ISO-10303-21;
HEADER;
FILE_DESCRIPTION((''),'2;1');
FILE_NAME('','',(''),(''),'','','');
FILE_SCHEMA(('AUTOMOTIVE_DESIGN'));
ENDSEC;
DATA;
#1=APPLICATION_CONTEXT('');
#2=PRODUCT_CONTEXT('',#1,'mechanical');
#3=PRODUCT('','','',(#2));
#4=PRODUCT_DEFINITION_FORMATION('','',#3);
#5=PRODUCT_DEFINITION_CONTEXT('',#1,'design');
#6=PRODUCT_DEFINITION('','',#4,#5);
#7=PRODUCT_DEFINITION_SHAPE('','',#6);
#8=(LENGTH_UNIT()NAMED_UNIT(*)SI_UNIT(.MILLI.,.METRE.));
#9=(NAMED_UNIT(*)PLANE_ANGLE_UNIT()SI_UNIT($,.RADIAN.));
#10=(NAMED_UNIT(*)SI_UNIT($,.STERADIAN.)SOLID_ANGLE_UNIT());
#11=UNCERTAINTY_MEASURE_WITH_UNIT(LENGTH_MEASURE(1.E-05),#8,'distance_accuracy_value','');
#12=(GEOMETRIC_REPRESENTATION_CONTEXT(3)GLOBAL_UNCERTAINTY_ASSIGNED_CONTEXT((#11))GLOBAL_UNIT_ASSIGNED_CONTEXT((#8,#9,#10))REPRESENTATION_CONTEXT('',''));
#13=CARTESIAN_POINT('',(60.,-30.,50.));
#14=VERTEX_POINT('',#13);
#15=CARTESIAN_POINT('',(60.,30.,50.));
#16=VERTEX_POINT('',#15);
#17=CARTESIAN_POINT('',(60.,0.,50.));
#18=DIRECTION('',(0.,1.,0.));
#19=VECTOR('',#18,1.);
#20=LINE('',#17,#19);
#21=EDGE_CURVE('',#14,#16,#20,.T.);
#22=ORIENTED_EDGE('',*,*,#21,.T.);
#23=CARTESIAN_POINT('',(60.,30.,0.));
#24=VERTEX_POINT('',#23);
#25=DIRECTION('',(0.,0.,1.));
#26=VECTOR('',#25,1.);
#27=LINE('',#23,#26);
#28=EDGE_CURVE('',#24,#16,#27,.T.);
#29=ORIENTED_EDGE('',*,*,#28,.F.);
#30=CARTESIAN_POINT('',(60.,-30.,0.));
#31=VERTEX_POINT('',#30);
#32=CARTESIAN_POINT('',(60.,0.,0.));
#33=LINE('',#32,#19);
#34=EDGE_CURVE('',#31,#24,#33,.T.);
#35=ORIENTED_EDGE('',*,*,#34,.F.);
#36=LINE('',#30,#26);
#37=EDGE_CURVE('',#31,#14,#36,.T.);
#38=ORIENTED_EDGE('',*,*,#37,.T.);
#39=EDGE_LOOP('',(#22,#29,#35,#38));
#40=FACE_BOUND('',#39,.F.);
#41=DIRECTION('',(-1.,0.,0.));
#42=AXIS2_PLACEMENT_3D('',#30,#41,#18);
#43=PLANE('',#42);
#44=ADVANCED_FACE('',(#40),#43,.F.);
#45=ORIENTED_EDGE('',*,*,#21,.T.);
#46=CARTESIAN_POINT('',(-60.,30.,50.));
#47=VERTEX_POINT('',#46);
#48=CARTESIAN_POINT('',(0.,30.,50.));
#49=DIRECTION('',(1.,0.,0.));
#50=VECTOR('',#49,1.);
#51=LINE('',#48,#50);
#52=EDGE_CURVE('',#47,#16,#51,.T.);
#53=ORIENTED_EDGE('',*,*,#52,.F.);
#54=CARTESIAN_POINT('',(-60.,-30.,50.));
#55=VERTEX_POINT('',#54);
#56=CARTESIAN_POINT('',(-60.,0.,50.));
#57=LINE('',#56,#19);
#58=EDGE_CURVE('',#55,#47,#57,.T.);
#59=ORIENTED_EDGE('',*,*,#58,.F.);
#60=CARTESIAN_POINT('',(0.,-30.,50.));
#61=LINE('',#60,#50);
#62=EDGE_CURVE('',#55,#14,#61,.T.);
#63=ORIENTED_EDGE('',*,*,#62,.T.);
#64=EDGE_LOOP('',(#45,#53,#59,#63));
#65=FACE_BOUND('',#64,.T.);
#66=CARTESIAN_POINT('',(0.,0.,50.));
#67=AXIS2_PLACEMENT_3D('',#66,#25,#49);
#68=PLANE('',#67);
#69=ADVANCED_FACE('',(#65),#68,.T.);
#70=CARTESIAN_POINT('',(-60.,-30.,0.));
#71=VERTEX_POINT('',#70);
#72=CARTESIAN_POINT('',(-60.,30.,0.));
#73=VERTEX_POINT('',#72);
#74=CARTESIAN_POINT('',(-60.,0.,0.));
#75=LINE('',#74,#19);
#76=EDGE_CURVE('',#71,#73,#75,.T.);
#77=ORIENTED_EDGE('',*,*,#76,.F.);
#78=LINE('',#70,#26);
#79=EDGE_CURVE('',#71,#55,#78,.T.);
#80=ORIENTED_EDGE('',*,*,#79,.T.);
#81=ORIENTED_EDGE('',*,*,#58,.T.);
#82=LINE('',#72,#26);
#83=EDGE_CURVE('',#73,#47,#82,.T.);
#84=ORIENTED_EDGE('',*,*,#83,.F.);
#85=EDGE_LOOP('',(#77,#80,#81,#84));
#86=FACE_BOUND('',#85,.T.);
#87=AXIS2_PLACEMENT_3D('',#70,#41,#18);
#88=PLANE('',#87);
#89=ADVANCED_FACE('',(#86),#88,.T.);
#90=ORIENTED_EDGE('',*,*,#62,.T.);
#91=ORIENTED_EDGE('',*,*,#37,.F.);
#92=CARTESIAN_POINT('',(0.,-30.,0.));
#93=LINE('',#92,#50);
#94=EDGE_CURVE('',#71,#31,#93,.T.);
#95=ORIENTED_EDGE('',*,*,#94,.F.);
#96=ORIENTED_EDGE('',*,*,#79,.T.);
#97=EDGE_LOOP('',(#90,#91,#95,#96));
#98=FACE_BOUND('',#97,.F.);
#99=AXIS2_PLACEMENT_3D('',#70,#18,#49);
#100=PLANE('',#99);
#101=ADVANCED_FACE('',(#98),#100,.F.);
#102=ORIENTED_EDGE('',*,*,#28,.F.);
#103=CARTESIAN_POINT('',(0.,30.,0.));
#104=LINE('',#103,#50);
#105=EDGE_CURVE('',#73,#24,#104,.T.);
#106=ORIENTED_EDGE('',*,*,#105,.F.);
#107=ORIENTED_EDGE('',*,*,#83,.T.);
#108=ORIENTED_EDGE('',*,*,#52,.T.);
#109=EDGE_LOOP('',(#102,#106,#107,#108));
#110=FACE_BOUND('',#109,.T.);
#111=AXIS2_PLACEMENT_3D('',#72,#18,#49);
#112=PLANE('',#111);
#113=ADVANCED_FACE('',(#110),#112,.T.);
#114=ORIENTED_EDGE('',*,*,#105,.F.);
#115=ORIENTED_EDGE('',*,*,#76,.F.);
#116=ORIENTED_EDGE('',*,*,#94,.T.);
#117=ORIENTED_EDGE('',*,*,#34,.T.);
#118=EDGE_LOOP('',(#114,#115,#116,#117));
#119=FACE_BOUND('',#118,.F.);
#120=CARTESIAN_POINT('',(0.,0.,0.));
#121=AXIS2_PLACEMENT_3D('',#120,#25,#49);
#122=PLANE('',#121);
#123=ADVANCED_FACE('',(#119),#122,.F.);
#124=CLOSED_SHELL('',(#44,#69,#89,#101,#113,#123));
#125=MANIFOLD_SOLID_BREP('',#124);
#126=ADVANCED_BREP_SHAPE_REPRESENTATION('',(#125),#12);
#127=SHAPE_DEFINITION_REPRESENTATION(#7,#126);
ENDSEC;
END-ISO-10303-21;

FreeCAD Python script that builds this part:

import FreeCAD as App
import Part
import Sketcher

V = App.Vector
Q = App.Units.Quantity


def add_polygon(sketch, points):
    """Adds a closed chain of lines whose ends are joined by coincident constraints."""
    first, n = sketch.GeometryCount, len(points)
    for a, b in zip(points, points[1:] + points[:1]):
        sketch.addGeometry(Part.LineSegment(App.Vector(*a, 0), App.Vector(*b, 0)), False)
    for i in range(n):
        sketch.addConstraint(Sketcher.Constraint("Coincident", first + i, 2, first + (i + 1) % n, 1))

doc = App.newDocument("Part")
body = doc.addObject("PartDesign::Body", "Body")

# Sketch on XY plane
sketch1 = body.newObject("Sketcher::SketchObject", "Sketch")
sketch1.AttachmentSupport = (doc.getObject("XY_Plane"), [""])
sketch1.MapMode = "FlatFace"
add_polygon(sketch1, [(-60, 30), (-60, -30), (60, -30), (60, 30)])  # lines 0-3
sketch1.addConstraint([
    Sketcher.Constraint("Vertical", 0),
    Sketcher.Constraint("Horizontal", 1),
    Sketcher.Constraint("Vertical", 2),
    Sketcher.Constraint("Horizontal", 3),
    Sketcher.Constraint("Symmetric", 0, 2, 2, 2, -1, 1),
    Sketcher.Constraint("DistanceX", 1, 1, 1, 2, Q("120 mm")),
    Sketcher.Constraint("DistanceY", 0, 2, 0, 1, Q("60 mm")),
])
pad1 = body.newObject("PartDesign::Pad", "Pad")
pad1.Profile = sketch1
pad1.Length = 50

doc.recompute()
